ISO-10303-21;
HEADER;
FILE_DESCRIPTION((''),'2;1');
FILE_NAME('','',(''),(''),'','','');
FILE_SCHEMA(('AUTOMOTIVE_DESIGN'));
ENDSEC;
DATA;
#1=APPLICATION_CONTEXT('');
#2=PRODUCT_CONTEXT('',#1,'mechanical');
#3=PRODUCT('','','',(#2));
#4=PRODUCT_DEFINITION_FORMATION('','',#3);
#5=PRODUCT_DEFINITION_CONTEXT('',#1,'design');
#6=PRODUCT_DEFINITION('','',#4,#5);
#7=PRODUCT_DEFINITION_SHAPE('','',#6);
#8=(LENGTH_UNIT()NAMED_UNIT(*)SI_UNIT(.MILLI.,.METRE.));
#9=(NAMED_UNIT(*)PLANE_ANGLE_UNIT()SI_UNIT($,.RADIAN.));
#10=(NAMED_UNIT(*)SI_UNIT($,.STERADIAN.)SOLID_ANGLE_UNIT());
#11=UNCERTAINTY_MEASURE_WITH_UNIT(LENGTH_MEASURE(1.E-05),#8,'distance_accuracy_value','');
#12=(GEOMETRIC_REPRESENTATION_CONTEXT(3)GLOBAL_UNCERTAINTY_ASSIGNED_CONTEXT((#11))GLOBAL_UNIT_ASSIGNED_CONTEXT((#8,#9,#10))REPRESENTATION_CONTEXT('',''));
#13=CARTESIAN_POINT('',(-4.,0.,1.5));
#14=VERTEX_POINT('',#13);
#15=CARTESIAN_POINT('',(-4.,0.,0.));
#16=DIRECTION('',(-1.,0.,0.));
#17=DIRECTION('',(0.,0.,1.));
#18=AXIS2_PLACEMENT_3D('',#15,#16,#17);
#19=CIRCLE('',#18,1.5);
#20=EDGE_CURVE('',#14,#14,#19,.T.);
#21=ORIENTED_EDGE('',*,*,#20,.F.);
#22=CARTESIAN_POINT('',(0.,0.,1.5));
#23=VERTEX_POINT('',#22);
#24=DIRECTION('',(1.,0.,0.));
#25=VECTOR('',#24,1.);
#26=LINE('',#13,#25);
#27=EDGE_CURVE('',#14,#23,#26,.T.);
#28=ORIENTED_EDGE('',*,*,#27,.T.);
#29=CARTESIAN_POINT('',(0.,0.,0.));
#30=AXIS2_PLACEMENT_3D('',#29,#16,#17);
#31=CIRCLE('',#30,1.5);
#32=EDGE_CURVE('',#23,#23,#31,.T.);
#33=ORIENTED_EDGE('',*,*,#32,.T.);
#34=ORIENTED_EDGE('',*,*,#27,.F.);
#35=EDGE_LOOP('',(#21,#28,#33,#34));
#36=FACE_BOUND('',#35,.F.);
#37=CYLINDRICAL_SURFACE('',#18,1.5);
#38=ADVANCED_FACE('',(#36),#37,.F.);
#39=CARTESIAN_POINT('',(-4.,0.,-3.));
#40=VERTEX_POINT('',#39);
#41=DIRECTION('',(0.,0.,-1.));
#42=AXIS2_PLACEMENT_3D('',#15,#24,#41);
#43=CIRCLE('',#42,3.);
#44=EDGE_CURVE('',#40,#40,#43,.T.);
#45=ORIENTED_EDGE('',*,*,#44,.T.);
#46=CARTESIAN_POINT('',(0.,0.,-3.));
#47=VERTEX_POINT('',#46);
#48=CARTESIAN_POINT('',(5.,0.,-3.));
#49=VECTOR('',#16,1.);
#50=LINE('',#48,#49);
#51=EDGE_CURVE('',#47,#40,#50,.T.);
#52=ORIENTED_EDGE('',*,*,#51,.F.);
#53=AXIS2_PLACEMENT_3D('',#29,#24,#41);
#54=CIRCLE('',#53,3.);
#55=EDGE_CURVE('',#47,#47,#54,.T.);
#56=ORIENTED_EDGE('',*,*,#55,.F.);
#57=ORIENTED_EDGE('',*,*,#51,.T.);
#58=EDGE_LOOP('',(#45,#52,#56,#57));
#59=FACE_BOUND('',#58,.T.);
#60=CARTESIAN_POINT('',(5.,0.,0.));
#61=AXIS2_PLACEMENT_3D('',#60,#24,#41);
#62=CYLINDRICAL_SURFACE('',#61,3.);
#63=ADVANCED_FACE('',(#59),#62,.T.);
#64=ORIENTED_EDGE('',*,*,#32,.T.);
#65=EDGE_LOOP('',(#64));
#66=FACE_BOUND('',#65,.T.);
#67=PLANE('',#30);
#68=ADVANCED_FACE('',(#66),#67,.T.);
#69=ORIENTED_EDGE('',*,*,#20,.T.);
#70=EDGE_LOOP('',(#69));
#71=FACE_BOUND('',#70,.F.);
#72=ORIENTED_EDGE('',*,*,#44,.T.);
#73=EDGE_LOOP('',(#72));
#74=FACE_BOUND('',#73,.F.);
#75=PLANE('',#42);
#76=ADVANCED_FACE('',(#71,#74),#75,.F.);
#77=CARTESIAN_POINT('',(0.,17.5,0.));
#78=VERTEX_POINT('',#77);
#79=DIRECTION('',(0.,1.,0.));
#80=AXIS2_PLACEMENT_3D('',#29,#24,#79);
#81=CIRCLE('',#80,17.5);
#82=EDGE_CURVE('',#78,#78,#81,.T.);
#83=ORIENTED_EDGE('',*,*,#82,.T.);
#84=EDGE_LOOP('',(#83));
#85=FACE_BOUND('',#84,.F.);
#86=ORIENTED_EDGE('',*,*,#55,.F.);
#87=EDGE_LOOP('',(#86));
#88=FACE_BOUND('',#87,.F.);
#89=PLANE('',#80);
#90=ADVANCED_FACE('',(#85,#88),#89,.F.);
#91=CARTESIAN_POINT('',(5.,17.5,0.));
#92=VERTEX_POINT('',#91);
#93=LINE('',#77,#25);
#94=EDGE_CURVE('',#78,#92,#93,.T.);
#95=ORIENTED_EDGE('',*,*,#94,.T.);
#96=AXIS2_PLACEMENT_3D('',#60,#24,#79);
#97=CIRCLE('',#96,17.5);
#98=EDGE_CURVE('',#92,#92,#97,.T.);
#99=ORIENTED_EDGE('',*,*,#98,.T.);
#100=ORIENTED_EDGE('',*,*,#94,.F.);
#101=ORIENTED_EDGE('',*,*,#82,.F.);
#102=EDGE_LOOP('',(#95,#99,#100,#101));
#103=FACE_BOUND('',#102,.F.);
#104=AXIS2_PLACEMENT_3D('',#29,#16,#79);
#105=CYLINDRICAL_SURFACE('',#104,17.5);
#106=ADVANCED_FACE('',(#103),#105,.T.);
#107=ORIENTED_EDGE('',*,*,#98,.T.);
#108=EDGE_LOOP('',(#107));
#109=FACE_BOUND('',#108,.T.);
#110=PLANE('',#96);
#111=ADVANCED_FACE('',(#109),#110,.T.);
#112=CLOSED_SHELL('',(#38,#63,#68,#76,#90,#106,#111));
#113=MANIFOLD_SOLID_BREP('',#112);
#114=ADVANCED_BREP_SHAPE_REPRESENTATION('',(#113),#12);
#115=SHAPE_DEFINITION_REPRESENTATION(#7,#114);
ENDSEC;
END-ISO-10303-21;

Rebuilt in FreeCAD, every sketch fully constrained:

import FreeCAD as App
import Part
import Sketcher

V = App.Vector

doc = App.newDocument("Part")
body = doc.addObject("PartDesign::Body", "Body")

# Sketch on YZ plane
sketch1 = body.newObject("Sketcher::SketchObject", "Sketch")
sketch1.AttachmentSupport = (doc.getObject("YZ_Plane"), [""])
sketch1.MapMode = "FlatFace"
sketch1.addGeometry(Part.Circle(V(0, 0, 0), V(0, 0, 1), 18), False)
sketch1.addConstraint(Sketcher.Constraint("Coincident", 0, 3, -1, 1))
sketch1.addConstraint(Sketcher.Constraint("Diameter", 0, 35.0))
pad1 = body.newObject("PartDesign::Pad", "Pad")
pad1.Profile = sketch1
pad1.Length = 5

# Sketch on YZ plane
sketch2 = body.newObject("Sketcher::SketchObject", "Sketch001")
sketch2.AttachmentSupport = (doc.getObject("YZ_Plane"), [""])
sketch2.MapMode = "FlatFace"
sketch2.AttachmentOffset = App.Placement(V(0, 0, 5), App.Rotation())
sketch2.addGeometry(Part.Circle(V(0, 0, 0), V(0, 0, 1), 3), False)
sketch2.addConstraint(Sketcher.Constraint("Coincident", 0, 3, -1, 1))
sketch2.addConstraint(Sketcher.Constraint("Diameter", 0, 6.0))
pad2 = body.newObject("PartDesign::Pad", "Pad001")
pad2.Profile = sketch2
pad2.Length = 9
pad2.Reversed = True

# Sketch on YZ plane
sketch3 = body.newObject("Sketcher::SketchObject", "Sketch002")
sketch3.AttachmentSupport = (doc.getObject("YZ_Plane"), [""])
sketch3.MapMode = "FlatFace"
sketch3.AttachmentOffset = App.Placement(V(0, 0, -4), App.Rotation())
sketch3.addGeometry(Part.Circle(V(0, 0, 0), V(0, 0, 1), 1.5), False)
sketch3.addConstraint(Sketcher.Constraint("Coincident", 0, 3, -1, 1))
sketch3.addConstraint(Sketcher.Constraint("Diameter", 0, 3.0))
pocket1 = body.newObject("PartDesign::Pocket", "Pocket")
pocket1.Profile = sketch3
pocket1.Length = 4
pocket1.Reversed = True

doc.recompute()
